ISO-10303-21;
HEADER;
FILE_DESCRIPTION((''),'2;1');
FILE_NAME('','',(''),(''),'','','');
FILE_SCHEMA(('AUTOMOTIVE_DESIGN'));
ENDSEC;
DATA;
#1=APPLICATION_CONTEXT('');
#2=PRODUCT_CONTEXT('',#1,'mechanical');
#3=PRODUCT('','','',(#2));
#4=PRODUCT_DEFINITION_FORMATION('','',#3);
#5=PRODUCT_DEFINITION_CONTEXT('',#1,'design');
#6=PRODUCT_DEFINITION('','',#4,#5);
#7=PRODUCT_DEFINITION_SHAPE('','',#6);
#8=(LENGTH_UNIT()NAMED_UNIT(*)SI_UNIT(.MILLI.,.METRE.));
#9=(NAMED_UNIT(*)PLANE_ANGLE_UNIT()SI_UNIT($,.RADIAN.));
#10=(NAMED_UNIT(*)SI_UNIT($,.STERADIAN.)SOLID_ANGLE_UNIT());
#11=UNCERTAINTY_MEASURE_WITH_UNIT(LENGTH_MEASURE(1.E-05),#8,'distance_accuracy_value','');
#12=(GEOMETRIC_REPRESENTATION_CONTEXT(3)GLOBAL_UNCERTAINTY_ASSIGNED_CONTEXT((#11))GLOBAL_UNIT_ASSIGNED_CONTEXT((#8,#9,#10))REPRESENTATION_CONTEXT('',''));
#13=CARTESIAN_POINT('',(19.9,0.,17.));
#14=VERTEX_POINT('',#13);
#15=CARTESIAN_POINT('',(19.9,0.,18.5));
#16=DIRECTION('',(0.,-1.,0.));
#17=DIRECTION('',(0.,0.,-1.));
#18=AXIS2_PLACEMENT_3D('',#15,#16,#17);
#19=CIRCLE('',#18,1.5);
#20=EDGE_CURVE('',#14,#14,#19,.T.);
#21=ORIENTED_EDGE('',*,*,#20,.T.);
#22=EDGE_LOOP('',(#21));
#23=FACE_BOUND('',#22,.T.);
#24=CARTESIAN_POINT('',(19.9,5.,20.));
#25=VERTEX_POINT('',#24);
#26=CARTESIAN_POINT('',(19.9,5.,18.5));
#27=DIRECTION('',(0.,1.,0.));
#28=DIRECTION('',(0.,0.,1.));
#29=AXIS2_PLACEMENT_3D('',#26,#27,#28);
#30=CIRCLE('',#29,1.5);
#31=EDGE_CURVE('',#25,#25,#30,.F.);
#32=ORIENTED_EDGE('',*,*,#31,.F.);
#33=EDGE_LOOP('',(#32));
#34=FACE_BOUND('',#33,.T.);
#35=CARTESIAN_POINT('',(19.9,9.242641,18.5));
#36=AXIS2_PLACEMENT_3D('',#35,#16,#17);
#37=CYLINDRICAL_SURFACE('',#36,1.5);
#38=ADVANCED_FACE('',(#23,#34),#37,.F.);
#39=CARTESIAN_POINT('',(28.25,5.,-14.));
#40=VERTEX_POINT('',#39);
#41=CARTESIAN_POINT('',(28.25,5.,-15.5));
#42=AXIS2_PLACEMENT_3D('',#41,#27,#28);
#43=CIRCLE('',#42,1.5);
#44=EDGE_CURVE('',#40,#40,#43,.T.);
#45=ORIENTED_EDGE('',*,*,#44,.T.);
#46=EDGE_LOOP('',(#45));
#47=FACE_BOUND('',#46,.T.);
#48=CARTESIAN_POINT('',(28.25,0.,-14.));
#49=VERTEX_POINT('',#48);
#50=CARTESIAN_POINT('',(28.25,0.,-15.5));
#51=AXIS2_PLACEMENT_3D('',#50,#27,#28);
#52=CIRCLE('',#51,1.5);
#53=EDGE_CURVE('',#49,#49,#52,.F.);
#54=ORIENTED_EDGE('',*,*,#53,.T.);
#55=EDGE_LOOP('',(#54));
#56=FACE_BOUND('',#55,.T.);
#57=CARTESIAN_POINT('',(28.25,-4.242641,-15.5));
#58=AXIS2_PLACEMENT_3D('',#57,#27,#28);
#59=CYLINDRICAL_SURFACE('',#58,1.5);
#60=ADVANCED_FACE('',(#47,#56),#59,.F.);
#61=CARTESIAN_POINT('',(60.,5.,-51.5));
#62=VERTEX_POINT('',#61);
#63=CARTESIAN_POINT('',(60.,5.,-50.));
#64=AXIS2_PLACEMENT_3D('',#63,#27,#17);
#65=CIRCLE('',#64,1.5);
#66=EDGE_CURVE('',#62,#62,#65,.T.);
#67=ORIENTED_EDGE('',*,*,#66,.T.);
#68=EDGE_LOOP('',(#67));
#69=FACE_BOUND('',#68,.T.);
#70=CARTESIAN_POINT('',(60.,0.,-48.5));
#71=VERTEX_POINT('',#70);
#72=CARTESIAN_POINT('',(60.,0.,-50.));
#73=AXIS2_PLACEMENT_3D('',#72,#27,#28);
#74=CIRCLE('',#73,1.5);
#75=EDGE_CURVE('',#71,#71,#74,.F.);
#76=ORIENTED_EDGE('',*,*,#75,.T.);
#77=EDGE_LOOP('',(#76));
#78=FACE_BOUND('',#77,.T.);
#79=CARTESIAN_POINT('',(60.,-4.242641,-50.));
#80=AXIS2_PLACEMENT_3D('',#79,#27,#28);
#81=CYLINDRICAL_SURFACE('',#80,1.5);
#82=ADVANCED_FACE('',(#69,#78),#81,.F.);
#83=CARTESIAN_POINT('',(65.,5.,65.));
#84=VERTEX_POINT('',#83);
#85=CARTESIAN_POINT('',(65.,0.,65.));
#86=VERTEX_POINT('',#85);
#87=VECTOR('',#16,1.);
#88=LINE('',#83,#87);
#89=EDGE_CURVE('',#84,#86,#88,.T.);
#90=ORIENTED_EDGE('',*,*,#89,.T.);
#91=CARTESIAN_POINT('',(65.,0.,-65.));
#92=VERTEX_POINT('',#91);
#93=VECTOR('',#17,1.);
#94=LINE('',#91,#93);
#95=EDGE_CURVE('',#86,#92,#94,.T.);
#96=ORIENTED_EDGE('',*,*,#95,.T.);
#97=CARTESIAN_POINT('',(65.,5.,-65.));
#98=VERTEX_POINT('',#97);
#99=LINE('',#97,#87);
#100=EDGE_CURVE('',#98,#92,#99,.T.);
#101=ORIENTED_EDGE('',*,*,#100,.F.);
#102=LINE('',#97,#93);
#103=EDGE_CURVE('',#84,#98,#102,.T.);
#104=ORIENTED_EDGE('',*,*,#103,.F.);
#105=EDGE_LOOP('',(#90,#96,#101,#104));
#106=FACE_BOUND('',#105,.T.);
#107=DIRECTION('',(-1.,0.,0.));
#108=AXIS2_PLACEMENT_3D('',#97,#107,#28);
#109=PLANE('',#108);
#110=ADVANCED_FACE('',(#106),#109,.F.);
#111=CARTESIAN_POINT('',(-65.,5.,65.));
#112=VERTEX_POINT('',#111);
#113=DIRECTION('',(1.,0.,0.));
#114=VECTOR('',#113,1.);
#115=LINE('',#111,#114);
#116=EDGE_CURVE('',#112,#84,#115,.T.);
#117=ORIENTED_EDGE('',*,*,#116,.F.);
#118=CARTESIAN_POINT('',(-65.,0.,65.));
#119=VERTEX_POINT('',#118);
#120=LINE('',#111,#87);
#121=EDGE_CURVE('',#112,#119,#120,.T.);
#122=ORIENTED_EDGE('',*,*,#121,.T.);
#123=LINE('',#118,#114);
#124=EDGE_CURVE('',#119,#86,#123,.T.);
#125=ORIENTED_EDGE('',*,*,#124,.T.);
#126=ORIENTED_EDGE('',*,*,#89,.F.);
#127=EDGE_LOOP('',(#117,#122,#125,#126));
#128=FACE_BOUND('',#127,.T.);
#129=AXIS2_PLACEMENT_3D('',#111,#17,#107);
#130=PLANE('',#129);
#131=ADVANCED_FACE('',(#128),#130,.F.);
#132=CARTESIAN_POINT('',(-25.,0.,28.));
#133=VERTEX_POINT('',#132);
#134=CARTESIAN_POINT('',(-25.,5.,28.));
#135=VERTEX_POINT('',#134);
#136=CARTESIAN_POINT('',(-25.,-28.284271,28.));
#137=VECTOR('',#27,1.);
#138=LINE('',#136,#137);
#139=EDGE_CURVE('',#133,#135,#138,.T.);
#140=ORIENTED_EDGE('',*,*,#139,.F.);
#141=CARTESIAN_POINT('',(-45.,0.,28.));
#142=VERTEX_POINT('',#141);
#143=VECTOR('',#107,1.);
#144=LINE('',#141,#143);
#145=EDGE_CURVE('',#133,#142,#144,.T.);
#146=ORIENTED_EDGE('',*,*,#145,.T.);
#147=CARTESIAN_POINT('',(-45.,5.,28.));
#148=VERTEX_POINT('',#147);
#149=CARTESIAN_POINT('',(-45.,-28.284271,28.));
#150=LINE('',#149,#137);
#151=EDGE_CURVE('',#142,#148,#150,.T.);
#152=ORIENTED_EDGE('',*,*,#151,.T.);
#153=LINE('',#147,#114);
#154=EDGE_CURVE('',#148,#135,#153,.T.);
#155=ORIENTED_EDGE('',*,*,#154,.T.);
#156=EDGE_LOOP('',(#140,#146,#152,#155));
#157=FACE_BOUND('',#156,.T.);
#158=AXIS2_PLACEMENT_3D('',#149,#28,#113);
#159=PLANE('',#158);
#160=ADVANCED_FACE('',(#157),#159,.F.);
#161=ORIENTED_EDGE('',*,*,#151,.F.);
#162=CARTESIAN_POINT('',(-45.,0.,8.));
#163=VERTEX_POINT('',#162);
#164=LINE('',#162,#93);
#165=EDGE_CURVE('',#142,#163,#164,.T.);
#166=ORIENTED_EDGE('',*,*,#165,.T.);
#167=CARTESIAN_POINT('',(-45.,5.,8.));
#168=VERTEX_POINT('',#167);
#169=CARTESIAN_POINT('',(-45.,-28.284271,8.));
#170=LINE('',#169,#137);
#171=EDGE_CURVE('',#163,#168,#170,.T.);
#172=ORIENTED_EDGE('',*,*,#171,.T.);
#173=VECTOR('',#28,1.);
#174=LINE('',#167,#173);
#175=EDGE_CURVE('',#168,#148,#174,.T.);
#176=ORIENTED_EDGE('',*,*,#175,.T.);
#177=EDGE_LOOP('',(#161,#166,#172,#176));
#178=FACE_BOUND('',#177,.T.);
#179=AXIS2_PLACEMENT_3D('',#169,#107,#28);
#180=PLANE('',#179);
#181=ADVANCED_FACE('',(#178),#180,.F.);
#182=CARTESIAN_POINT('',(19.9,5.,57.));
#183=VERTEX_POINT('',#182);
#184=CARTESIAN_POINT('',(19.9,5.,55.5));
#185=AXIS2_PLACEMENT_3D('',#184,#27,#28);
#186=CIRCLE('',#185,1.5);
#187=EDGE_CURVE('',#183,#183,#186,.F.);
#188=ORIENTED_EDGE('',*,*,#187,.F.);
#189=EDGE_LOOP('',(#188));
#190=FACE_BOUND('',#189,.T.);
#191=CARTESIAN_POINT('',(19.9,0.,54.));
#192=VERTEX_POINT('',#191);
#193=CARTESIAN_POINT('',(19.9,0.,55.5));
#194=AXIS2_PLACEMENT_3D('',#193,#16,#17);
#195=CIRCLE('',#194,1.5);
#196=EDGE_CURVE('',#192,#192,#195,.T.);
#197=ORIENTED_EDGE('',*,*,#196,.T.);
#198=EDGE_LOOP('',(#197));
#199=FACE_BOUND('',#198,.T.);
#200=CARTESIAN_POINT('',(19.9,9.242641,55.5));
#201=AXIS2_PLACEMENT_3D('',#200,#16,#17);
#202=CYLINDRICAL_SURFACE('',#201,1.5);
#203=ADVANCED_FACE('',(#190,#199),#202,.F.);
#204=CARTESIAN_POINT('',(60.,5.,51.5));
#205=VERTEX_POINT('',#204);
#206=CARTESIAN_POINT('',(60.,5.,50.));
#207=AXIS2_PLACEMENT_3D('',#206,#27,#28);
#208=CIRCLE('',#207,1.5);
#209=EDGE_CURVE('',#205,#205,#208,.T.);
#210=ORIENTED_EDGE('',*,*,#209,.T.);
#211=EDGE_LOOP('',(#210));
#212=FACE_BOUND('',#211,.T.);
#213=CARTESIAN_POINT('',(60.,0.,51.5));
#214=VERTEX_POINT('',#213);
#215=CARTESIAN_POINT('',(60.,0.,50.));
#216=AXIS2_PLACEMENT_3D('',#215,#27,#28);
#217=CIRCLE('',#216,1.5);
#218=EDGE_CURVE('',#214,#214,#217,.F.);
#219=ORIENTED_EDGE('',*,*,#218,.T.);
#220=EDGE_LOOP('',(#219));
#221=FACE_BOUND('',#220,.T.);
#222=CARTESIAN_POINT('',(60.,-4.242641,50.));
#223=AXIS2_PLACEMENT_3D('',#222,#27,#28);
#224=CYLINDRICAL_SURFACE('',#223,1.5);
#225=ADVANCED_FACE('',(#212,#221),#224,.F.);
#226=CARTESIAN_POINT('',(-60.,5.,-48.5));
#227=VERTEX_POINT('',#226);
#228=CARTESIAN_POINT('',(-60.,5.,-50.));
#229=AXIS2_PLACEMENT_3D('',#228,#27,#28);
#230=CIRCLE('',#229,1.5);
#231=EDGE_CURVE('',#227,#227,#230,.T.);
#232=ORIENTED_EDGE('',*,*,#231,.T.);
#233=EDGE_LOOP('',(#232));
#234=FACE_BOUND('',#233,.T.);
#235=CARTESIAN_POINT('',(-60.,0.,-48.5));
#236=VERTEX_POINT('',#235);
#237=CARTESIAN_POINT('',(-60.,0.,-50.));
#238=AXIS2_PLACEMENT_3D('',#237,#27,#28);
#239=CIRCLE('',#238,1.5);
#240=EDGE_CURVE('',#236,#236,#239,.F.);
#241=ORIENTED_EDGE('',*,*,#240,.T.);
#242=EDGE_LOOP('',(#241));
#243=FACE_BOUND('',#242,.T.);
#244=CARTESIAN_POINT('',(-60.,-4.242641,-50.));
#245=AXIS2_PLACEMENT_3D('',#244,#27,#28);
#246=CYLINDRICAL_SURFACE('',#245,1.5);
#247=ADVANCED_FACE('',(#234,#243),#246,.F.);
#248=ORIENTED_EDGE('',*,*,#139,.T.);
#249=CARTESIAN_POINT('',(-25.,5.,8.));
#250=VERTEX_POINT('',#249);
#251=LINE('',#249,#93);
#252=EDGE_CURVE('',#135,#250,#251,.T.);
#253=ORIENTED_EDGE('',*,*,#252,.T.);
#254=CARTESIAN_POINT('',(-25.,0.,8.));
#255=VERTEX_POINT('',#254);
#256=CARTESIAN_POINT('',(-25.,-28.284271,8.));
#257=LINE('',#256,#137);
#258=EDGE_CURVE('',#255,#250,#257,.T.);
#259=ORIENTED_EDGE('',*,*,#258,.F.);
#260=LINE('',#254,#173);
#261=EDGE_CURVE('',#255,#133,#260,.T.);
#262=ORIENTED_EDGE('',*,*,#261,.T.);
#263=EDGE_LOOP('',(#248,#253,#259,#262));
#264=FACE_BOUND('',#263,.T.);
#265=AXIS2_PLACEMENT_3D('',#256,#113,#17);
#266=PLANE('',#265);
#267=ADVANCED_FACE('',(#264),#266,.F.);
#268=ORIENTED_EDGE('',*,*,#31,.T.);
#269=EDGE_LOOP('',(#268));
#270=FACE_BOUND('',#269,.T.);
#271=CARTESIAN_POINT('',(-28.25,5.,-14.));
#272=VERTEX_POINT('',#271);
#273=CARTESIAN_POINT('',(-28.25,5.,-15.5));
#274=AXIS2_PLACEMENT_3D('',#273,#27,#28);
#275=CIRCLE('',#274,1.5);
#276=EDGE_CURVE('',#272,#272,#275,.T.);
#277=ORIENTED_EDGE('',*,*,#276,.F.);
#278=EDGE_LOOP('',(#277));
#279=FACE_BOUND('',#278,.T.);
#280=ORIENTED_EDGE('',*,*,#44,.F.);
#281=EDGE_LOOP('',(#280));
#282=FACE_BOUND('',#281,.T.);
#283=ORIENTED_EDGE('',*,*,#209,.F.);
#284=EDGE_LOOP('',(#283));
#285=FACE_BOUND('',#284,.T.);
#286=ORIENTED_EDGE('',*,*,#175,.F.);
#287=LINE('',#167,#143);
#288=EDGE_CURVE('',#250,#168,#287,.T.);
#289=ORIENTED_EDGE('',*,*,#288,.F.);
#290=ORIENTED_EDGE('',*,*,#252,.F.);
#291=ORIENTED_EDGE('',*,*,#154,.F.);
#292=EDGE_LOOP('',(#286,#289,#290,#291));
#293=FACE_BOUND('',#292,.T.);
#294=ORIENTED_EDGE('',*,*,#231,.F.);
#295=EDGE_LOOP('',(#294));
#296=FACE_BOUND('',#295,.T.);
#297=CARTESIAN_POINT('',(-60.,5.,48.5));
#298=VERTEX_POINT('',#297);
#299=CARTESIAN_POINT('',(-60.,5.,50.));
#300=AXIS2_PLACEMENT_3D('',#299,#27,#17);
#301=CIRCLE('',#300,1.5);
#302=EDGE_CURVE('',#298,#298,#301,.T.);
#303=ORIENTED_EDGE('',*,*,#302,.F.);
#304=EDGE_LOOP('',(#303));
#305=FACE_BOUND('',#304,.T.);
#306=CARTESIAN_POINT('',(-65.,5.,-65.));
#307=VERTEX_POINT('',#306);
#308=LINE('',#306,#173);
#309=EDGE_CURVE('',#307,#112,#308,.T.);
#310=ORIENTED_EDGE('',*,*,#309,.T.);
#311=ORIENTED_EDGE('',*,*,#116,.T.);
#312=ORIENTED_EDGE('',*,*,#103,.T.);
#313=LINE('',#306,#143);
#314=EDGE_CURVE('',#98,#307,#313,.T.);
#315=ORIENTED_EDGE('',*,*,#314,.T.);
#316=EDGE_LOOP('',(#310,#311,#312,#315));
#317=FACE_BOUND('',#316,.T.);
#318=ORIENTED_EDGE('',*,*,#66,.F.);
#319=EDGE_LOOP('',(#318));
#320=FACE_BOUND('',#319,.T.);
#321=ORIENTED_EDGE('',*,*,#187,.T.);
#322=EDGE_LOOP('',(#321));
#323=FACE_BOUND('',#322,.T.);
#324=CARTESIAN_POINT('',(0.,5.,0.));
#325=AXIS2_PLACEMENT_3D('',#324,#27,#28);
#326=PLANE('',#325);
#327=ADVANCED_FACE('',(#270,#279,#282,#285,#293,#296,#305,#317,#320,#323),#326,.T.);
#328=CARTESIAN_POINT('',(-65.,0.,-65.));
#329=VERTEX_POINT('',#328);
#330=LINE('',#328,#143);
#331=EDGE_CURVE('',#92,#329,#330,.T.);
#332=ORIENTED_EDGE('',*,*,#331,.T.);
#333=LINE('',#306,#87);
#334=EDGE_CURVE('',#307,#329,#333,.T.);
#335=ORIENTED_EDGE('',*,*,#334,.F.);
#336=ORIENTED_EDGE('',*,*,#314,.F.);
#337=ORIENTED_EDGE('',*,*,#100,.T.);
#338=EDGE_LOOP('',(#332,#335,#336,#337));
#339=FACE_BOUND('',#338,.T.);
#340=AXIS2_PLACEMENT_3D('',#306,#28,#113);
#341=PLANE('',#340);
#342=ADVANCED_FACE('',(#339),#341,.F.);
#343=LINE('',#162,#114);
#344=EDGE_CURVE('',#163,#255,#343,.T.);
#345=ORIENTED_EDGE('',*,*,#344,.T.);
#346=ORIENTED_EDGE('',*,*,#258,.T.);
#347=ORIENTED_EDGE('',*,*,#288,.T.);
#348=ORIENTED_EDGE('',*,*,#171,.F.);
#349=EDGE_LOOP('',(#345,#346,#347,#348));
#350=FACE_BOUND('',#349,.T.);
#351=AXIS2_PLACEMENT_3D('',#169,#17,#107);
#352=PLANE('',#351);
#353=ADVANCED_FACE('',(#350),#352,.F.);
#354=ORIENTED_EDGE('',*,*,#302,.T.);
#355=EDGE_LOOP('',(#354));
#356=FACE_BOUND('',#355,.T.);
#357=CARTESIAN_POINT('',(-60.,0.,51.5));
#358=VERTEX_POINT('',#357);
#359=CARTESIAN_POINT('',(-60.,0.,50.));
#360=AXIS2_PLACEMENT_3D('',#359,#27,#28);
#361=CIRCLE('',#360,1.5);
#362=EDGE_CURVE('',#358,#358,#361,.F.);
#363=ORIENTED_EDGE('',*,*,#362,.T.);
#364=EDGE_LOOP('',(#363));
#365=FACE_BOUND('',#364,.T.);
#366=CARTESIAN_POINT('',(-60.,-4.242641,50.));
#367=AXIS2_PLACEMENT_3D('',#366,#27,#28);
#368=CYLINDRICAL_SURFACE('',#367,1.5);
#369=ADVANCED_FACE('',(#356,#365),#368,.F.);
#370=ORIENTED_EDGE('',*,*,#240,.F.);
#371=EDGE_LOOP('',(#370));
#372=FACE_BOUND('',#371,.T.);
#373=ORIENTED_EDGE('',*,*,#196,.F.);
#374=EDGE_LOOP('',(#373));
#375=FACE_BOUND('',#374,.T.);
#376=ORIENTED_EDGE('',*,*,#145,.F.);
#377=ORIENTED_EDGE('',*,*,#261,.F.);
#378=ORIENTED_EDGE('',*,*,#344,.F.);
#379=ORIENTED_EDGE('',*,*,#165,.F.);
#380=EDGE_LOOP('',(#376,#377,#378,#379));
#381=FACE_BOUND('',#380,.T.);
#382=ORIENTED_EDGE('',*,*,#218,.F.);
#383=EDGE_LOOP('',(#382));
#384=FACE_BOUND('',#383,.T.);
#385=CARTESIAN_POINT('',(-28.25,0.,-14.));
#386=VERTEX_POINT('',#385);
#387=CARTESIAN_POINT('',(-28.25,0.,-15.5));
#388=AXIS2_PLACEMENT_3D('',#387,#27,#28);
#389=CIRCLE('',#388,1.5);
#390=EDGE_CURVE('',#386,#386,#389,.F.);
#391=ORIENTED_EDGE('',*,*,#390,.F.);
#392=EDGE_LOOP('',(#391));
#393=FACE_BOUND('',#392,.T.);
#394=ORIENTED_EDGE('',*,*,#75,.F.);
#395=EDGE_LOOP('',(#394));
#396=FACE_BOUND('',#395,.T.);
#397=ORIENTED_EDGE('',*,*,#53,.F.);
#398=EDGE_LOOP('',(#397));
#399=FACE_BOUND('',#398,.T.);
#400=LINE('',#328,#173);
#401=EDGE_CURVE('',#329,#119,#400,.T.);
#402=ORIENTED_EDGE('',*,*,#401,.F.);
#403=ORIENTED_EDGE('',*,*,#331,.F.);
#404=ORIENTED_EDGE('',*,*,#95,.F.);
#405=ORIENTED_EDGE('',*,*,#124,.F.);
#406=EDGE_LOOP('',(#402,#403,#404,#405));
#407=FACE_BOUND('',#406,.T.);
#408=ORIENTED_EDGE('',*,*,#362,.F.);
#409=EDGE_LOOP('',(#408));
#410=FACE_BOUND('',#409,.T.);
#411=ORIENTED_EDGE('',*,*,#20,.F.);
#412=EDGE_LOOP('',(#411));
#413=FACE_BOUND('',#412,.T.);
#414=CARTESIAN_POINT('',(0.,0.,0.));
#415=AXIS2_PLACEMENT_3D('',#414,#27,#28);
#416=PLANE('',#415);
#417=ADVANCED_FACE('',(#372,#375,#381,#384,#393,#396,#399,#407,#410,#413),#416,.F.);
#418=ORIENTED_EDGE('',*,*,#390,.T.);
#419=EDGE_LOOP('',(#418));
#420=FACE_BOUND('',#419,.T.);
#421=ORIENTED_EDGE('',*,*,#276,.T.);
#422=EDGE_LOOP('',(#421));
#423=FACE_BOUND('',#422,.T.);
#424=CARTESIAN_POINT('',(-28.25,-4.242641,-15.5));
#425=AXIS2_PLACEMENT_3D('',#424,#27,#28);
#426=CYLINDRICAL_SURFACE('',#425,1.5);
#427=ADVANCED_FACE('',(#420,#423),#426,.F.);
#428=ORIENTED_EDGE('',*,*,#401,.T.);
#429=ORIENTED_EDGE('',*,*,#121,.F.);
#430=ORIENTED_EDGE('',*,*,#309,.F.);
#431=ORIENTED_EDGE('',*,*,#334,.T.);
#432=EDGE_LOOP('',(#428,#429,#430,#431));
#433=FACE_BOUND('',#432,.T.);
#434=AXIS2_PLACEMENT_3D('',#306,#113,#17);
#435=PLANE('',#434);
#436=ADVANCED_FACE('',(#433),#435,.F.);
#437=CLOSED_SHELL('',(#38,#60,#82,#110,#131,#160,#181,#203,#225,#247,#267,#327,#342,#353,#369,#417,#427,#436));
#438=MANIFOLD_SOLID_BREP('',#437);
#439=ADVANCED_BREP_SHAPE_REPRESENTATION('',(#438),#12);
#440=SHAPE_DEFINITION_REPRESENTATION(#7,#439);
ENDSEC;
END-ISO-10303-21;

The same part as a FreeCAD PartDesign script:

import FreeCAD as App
import Part
import Sketcher
from FreeCAD import Vector

doc = App.newDocument("Part")
body = doc.addObject("PartDesign::Body", "Body")

sketch1 = body.newObject("Sketcher::SketchObject", "Sketch")
sketch1.AttachmentSupport = (doc.getObject("XZ_Plane"), [""])
sketch1.MapMode = "FlatFace"
sketch1.addGeometry(Part.LineSegment(Vector(-65, -65, 0), Vector(-65, 65, 0)), False)
sketch1.addGeometry(Part.LineSegment(Vector(-65, 65, 0), Vector(65, 65, 0)), False)
sketch1.addGeometry(Part.LineSegment(Vector(65, 65, 0), Vector(65, -65, 0)), False)
sketch1.addGeometry(Part.LineSegment(Vector(65, -65, 0), Vector(-65, -65, 0)), False)
sketch1.addConstraint(Sketcher.Constraint("Coincident", 0, 2, 1, 1))
sketch1.addConstraint(Sketcher.Constraint("Coincident", 1, 2, 2, 1))
sketch1.addConstraint(Sketcher.Constraint("Coincident", 2, 2, 3, 1))
sketch1.addConstraint(Sketcher.Constraint("Coincident", 3, 2, 0, 1))
sketch1.addConstraint(Sketcher.Constraint("Vertical", 0))
sketch1.addConstraint(Sketcher.Constraint("Horizontal", 1))
sketch1.addConstraint(Sketcher.Constraint("Vertical", 2))
sketch1.addConstraint(Sketcher.Constraint("Horizontal", 3))
sketch1.addConstraint(Sketcher.Constraint("Symmetric", 0, 2, 2, 2, -1, 1))
sketch1.addConstraint(Sketcher.Constraint("Equal", 3, 0))
sketch1.addConstraint(Sketcher.Constraint("DistanceX", 1, 1, 1, 2, 130.0))
pad1 = body.newObject("PartDesign::Pad", "Pad")
pad1.Profile = sketch1
pad1.Length = 5
pad1.Reversed = True

sketch2 = body.newObject("Sketcher::SketchObject", "Sketch001")
sketch2.AttachmentSupport = (doc.getObject("XZ_Plane"), [""])
sketch2.MapMode = "FlatFace"
sketch2.addGeometry(Part.Circle(Vector(19.9, 55.5, 0), Vector(0, 0, 1), 1.5), False)
sketch2.addGeometry(Part.Circle(Vector(19.9, 18.5, 0), Vector(0, 0, 1), 1.5), False)
sketch2.addConstraint(Sketcher.Constraint("Equal", 0, 1))
sketch2.addConstraint(Sketcher.Constraint("Vertical", 0, 3, 1, 3))
sketch2.addConstraint(Sketcher.Constraint("Diameter", 0, 3.0))
sketch2.addConstraint(Sketcher.Constraint("DistanceY", 1, 3, 0, 3, 37.0))
sketch2.addConstraint(Sketcher.Constraint("DistanceX", -1, 1, 0, 3, 19.9))
sketch2.addConstraint(Sketcher.Constraint("DistanceY", -1, 1, 0, 3, 55.5))
pocket1 = body.newObject("PartDesign::Pocket", "Pocket")
pocket1.Profile = sketch2
pocket1.Length = 5

sketch3 = body.newObject("Sketcher::SketchObject", "Sketch002")
sketch3.AttachmentSupport = (doc.getObject("XZ_Plane"), [""])
sketch3.MapMode = "FlatFace"
sketch3.AttachmentOffset = App.Placement(Vector(0, 0, -5), App.Rotation())
sketch3.addGeometry(Part.Circle(Vector(-28.25, -15.5, 0), Vector(0, 0, 1), 1.5), False)
sketch3.addGeometry(Part.Circle(Vector(28.25, -15.5, 0), Vector(0, 0, 1), 1.5), False)
sketch3.addConstraint(Sketcher.Constraint("Equal", 0, 1))
sketch3.addConstraint(Sketcher.Constraint("Symmetric", 0, 3, 1, 3, -2))
sketch3.addConstraint(Sketcher.Constraint("Diameter", 0, 3.0))
sketch3.addConstraint(Sketcher.Constraint("DistanceY", 0, 3, -1, 1, 15.5))
sketch3.addConstraint(Sketcher.Constraint("DistanceX", 0, 3, 1, 3, 56.5))
pocket2 = body.newObject("PartDesign::Pocket", "Pocket001")
pocket2.Profile = sketch3
pocket2.Length = 5
pocket2.Reversed = True

sketch4 = body.newObject("Sketcher::SketchObject", "Sketch003")
sketch4.AttachmentSupport = (doc.getObject("XZ_Plane"), [""])
sketch4.MapMode = "FlatFace"
sketch4.AttachmentOffset = App.Placement(Vector(0, 0, -5), App.Rotation())
sketch4.addGeometry(Part.Circle(Vector(-60, -50, 0), Vector(0, 0, 1), 1.5), False)
sketch4.addGeometry(Part.Circle(Vector(60, -50, 0), Vector(0, 0, 1), 1.5), False)
sketch4.addGeometry(Part.Circle(Vector(60, 50, 0), Vector(0, 0, 1), 1.5), False)
sketch4.addGeometry(Part.Circle(Vector(-60, 50, 0), Vector(0, 0, 1), 1.5), False)
sketch4.addConstraint(Sketcher.Constraint("Equal", 0, 1))
sketch4.addConstraint(Sketcher.Constraint("Equal", 1, 2))
sketch4.addConstraint(Sketcher.Constraint("Equal", 2, 3))
sketch4.addConstraint(Sketcher.Constraint("Symmetric", 0, 3, 2, 3, -1, 1))
sketch4.addConstraint(Sketcher.Constraint("Symmetric", 1, 3, 3, 3, -1, 1))
sketch4.addConstraint(Sketcher.Constraint("Symmetric", 0, 3, 1, 3, -2))
sketch4.addConstraint(Sketcher.Constraint("Diameter", 0, 3.0))
sketch4.addConstraint(Sketcher.Constraint("DistanceX", 0, 3, -1, 1, 60.0))
sketch4.addConstraint(Sketcher.Constraint("DistanceY", 0, 3, -1, 1, 50.0))
pocket3 = body.newObject("PartDesign::Pocket", "Pocket002")
pocket3.Profile = sketch4
pocket3.Length = 5
pocket3.Reversed = True

sketch5 = body.newObject("Sketcher::SketchObject", "Sketch004")
sketch5.AttachmentSupport = (doc.getObject("XZ_Plane"), [""])
sketch5.MapMode = "FlatFace"
sketch5.AttachmentOffset = App.Placement(Vector(0, 0, -5), App.Rotation())
sketch5.addGeometry(Part.LineSegment(Vector(-45, 8, 0), Vector(-45, 28, 0)), False)
sketch5.addGeometry(Part.LineSegment(Vector(-45, 28, 0), Vector(-25, 28, 0)), False)
sketch5.addGeometry(Part.LineSegment(Vector(-25, 28, 0), Vector(-25, 8, 0)), False)
sketch5.addGeometry(Part.LineSegment(Vector(-25, 8, 0), Vector(-45, 8, 0)), False)
sketch5.addConstraint(Sketcher.Constraint("Coincident", 0, 2, 1, 1))
sketch5.addConstraint(Sketcher.Constraint("Coincident", 1, 2, 2, 1))
sketch5.addConstraint(Sketcher.Constraint("Coincident", 2, 2, 3, 1))
sketch5.addConstraint(Sketcher.Constraint("Coincident", 3, 2, 0, 1))
sketch5.addConstraint(Sketcher.Constraint("Vertical", 0))
sketch5.addConstraint(Sketcher.Constraint("Horizontal", 1))
sketch5.addConstraint(Sketcher.Constraint("Vertical", 2))
sketch5.addConstraint(Sketcher.Constraint("Horizontal", 3))
sketch5.addConstraint(Sketcher.Constraint("Equal", 3, 0))
sketch5.addConstraint(Sketcher.Constraint("DistanceX", 1, 1, 1, 2, 20.0))
sketch5.addConstraint(Sketcher.Constraint("DistanceX", 0, 2, -1, 1, 45.0))
sketch5.addConstraint(Sketcher.Constraint("DistanceY", -1, 1, 0, 2, 28.0))
pocket4 = body.newObject("PartDesign::Pocket", "Pocket003")
pocket4.Profile = sketch5
pocket4.Length = 5
pocket4.Reversed = True

doc.recompute()
